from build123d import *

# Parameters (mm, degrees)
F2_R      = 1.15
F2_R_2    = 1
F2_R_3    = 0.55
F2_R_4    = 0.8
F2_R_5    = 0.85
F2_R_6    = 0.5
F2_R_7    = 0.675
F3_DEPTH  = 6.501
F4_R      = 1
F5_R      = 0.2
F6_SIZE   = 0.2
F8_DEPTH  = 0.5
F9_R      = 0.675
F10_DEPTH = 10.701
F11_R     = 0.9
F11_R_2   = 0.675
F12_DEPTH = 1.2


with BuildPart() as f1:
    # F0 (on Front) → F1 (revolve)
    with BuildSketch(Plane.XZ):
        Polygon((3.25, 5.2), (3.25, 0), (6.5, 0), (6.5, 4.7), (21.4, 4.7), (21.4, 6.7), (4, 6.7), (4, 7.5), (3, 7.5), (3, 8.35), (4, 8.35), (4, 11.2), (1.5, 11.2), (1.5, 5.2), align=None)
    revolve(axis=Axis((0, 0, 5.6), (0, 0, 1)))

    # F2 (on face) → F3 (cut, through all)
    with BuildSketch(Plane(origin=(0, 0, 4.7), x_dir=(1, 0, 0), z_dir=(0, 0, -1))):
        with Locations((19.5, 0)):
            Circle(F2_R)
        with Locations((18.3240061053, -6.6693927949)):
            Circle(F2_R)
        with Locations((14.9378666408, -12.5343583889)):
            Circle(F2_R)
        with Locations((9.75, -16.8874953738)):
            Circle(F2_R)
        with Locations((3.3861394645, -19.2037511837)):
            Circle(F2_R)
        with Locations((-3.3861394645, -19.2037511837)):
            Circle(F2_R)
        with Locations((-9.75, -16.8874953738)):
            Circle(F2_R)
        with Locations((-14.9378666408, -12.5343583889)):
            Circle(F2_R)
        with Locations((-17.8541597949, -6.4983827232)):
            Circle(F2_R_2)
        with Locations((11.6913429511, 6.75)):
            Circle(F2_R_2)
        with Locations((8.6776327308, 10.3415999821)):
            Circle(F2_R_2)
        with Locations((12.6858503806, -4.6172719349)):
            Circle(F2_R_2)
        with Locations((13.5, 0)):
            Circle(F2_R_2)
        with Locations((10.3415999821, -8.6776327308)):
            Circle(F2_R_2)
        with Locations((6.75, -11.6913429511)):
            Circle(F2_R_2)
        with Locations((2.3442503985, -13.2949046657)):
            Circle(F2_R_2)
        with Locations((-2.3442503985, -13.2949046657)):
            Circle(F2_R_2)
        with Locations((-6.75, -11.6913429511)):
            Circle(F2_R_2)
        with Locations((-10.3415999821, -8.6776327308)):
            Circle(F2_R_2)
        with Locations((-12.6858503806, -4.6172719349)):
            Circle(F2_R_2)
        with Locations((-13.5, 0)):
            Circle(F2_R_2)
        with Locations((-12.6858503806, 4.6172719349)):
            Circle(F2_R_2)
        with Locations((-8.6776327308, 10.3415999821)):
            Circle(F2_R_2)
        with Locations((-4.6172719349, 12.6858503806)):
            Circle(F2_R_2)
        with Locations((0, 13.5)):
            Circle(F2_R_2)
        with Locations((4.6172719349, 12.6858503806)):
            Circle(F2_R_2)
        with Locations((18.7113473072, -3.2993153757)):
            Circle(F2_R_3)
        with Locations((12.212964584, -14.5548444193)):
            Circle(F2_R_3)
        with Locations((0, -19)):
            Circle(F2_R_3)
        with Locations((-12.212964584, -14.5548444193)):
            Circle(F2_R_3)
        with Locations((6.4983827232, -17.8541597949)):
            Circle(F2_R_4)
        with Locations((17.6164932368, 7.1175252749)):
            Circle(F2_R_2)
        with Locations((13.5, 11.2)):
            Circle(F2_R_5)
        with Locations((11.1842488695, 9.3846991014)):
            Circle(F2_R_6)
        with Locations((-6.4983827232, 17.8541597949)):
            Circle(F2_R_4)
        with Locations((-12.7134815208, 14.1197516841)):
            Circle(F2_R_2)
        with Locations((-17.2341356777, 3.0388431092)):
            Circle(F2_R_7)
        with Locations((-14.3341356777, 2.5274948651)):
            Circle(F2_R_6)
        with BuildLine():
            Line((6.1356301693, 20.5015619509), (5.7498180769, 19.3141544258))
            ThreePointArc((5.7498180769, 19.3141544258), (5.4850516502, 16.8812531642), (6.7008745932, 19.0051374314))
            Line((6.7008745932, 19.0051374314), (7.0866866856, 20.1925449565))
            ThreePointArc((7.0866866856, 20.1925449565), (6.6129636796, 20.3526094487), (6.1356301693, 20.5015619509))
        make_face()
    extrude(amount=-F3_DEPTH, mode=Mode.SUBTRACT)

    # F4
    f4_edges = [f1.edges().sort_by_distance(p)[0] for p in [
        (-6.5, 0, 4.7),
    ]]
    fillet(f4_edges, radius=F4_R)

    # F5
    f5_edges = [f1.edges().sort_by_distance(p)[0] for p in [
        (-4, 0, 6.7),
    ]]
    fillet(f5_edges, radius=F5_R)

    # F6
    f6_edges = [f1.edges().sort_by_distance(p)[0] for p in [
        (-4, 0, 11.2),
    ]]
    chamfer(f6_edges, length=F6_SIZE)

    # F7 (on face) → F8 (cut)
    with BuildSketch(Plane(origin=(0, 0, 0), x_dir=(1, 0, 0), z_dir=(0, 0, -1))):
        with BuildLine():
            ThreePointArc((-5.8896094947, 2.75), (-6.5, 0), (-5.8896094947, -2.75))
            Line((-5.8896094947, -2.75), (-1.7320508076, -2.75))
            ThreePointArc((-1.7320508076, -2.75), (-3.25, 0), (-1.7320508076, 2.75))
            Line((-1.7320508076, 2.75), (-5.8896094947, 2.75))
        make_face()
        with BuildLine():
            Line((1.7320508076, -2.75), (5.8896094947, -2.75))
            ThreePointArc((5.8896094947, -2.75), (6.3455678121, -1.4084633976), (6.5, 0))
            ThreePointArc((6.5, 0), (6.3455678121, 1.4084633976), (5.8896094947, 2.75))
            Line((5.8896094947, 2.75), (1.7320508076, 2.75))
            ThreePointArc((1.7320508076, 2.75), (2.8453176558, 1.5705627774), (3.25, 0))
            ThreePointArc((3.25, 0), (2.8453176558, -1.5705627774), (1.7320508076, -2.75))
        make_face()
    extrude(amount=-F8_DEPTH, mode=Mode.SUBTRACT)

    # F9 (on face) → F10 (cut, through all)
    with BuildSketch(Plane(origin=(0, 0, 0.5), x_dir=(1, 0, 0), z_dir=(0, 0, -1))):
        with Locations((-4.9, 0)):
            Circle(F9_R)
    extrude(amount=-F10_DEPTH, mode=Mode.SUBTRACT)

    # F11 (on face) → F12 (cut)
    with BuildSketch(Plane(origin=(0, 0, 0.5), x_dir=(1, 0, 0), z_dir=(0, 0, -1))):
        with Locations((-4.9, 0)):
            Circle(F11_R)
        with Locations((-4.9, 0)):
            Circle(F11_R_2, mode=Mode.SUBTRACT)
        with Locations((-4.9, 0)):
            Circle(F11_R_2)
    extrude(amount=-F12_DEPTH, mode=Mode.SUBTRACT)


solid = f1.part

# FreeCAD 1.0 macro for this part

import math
import FreeCAD as App
import Part
import Sketcher
from FreeCAD import Vector
Q = App.Units.Quantity


def edges_at(feature, points):
    """Names of the edges that pass closest to the given points."""
    edges = feature.Shape.Edges
    near = lambda p: min(range(len(edges)), key=lambda i: edges[i].distToShape(Part.Vertex(*p))[0])
    return sorted({f"Edge{near(p) + 1}" for p in points})

doc = App.newDocument("Part")
body = doc.addObject("PartDesign::Body", "Body")

sketch1 = body.newObject("Sketcher::SketchObject", "Sketch")
sketch1.AttachmentSupport = (doc.getObject("XZ_Plane"), [""])
sketch1.MapMode = "FlatFace"
sketch1.addGeometry(Part.LineSegment(Vector(3.2, 5.2, 0), Vector(3.2, 0, 0)), False)
sketch1.addGeometry(Part.LineSegment(Vector(3.2, 0, 0), Vector(6.5, 0, 0)), False)
sketch1.addGeometry(Part.LineSegment(Vector(6.5, 0, 0), Vector(6.5, 4.7, 0)), False)
sketch1.addGeometry(Part.LineSegment(Vector(6.5, 4.7, 0), Vector(21.4, 4.7, 0)), False)
sketch1.addGeometry(Part.LineSegment(Vector(21.4, 4.7, 0), Vector(21.4, 6.7, 0)), False)
sketch1.addGeometry(Part.LineSegment(Vector(21.4, 6.7, 0), Vector(4, 6.7, 0)), False)
sketch1.addGeometry(Part.LineSegment(Vector(4, 6.7, 0), Vector(4, 7.5, 0)), False)
sketch1.addGeometry(Part.LineSegment(Vector(4, 7.5, 0), Vector(3, 7.5, 0)), False)
sketch1.addGeometry(Part.LineSegment(Vector(3, 7.5, 0), Vector(3, 8.3, 0)), False)
sketch1.addGeometry(Part.LineSegment(Vector(3, 8.3, 0), Vector(4, 8.3, 0)), False)
sketch1.addGeometry(Part.LineSegment(Vector(4, 8.3, 0), Vector(4, 11.2, 0)), False)
sketch1.addGeometry(Part.LineSegment(Vector(4, 11.2, 0), Vector(1.5, 11.2, 0)), False)
sketch1.addGeometry(Part.LineSegment(Vector(1.5, 11.2, 0), Vector(1.5, 5.2, 0)), False)
sketch1.addGeometry(Part.LineSegment(Vector(1.5, 5.2, 0), Vector(3.2, 5.2, 0)), False)
sketch1.addConstraint(Sketcher.Constraint("Coincident", 0, 2, 1, 1))
sketch1.addConstraint(Sketcher.Constraint("Coincident", 1, 2, 2, 1))
sketch1.addConstraint(Sketcher.Constraint("Coincident", 2, 2, 3, 1))
sketch1.addConstraint(Sketcher.Constraint("Coincident", 3, 2, 4, 1))
sketch1.addConstraint(Sketcher.Constraint("Coincident", 4, 2, 5, 1))
sketch1.addConstraint(Sketcher.Constraint("Coincident", 5, 2, 6, 1))
sketch1.addConstraint(Sketcher.Constraint("Coincident", 6, 2, 7, 1))
sketch1.addConstraint(Sketcher.Constraint("Coincident", 7, 2, 8, 1))
sketch1.addConstraint(Sketcher.Constraint("Coincident", 8, 2, 9, 1))
sketch1.addConstraint(Sketcher.Constraint("Coincident", 9, 2, 10, 1))
sketch1.addConstraint(Sketcher.Constraint("Coincident", 10, 2, 11, 1))
sketch1.addConstraint(Sketcher.Constraint("Coincident", 11, 2, 12, 1))
sketch1.addConstraint(Sketcher.Constraint("Coincident", 12, 2, 13, 1))
sketch1.addConstraint(Sketcher.Constraint("Coincident", 13, 2, 0, 1))
sketch1.addConstraint(Sketcher.Constraint("Vertical", 0))
sketch1.addConstraint(Sketcher.Constraint("Horizontal", 1))
sketch1.addConstraint(Sketcher.Constraint("Vertical", 2))
sketch1.addConstraint(Sketcher.Constraint("Horizontal", 3))
sketch1.addConstraint(Sketcher.Constraint("Vertical", 4))
sketch1.addConstraint(Sketcher.Constraint("Horizontal", 5))
sketch1.addConstraint(Sketcher.Constraint("Vertical", 6))
sketch1.addConstraint(Sketcher.Constraint("Horizontal", 7))
sketch1.addConstraint(Sketcher.Constraint("Vertical", 8))
sketch1.addConstraint(Sketcher.Constraint("Horizontal", 9))
sketch1.addConstraint(Sketcher.Constraint("Vertical", 10))
sketch1.addConstraint(Sketcher.Constraint("Horizontal", 11))
sketch1.addConstraint(Sketcher.Constraint("Vertical", 12))
sketch1.addConstraint(Sketcher.Constraint("Horizontal", 13))
sketch1.addConstraint(Sketcher.Constraint("PointOnObject", 0, 2, -1))
sketch1.addConstraint(Sketcher.Constraint("Vertical", 6, 2, 9, 2))
sketch1.addConstraint(Sketcher.Constraint("DistanceX", 7, 2, 7, 1, 1.0))
sketch1.addConstraint(Sketcher.Constraint("DistanceY", 4, 1, 4, 2, 2.0))
sketch1.addConstraint(Sketcher.Constraint("DistanceY", 12, 2, 12, 1, 6.0))
sketch1.addConstraint(Sketcher.Constraint("DistanceX", 3, 1, 3, 2, 14.9))
sketch1.addConstraint(Sketcher.Constraint("DistanceX", 5, 2, 5, 1, 17.4))
sketch1.addConstraint(Sketcher.Constraint("DistanceX", 11, 2, 11, 1, 2.5))
sketch1.addConstraint(Sketcher.Constraint("DistanceY", 0, 2, 0, 1, 5.2))
sketch1.addConstraint(Sketcher.Constraint("DistanceY", 2, 1, 2, 2, 4.7))
sketch1.addConstraint(Sketcher.Constraint("DistanceY", 6, 1, 6, 2, 0.8))
sketch1.addConstraint(Sketcher.Constraint("DistanceX", -1, 1, 5, 2, 4.0))
sketch1.addConstraint(Sketcher.Constraint("DistanceX", 1, 1, 1, 2, 3.25))
sketch1.addConstraint(Sketcher.Constraint("DistanceY", 8, 1, 8, 2, 0.85))
revolution = body.newObject("PartDesign::Revolution", "Revolution")
revolution.Profile = sketch1
revolution.ReferenceAxis = (sketch1, ["V_Axis"])
revolution.Angle = 360

sketch2 = body.newObject("Sketcher::SketchObject", "Sketch001")
sketch2.AttachmentSupport = (doc.getObject("XY_Plane"), [""])
sketch2.MapMode = "FlatFace"
sketch2.AttachmentOffset = App.Placement(Vector(0, 0, 4.7), App.Rotation())
sketch2.addGeometry(Part.Circle(Vector(19.5, 0, 0), Vector(0, 0, 1), 1.1), False)
sketch2.addGeometry(Part.Circle(Vector(18.3, 6.7, 0), Vector(0, 0, 1), 1.1), False)
sketch2.addGeometry(Part.Circle(Vector(14.9, 12.5, 0), Vector(0, 0, 1), 1.1), False)
sketch2.addGeometry(Part.Circle(Vector(9.8, 16.9, 0), Vector(0, 0, 1), 1.1), False)
sketch2.addGeometry(Part.Circle(Vector(3.4, 19.2, 0), Vector(0, 0, 1), 1.1), False)
sketch2.addGeometry(Part.Circle(Vector(-3.4, 19.2, 0), Vector(0, 0, 1), 1.1), False)
sketch2.addGeometry(Part.Circle(Vector(-9.8, 16.9, 0), Vector(0, 0, 1), 1.1), False)
sketch2.addGeometry(Part.Circle(Vector(-14.9, 12.5, 0), Vector(0, 0, 1), 1.1), False)
sketch2.addGeometry(Part.Circle(Vector(-17.9, 6.5, 0), Vector(0, 0, 1), 1), False)
sketch2.addGeometry(Part.Circle(Vector(11.7, -6.8, 0), Vector(0, 0, 1), 1), False)
sketch2.addGeometry(Part.Circle(Vector(8.7, -10.3, 0), Vector(0, 0, 1), 1), False)
sketch2.addGeometry(Part.Circle(Vector(12.7, 4.6, 0), Vector(0, 0, 1), 1), False)
sketch2.addGeometry(Part.Circle(Vector(13.5, 0, 0), Vector(0, 0, 1), 1), False)
sketch2.addGeometry(Part.Circle(Vector(10.3, 8.7, 0), Vector(0, 0, 1), 1), False)
sketch2.addGeometry(Part.Circle(Vector(6.8, 11.7, 0), Vector(0, 0, 1), 1), False)
sketch2.addGeometry(Part.Circle(Vector(2.3, 13.3, 0), Vector(0, 0, 1), 1), False)
sketch2.addGeometry(Part.Circle(Vector(-2.3, 13.3, 0), Vector(0, 0, 1), 1), False)
sketch2.addGeometry(Part.Circle(Vector(-6.8, 11.7, 0), Vector(0, 0, 1), 1), False)
sketch2.addGeometry(Part.Circle(Vector(-10.3, 8.7, 0), Vector(0, 0, 1), 1), False)
sketch2.addGeometry(Part.Circle(Vector(-12.7, 4.6, 0), Vector(0, 0, 1), 1), False)
sketch2.addGeometry(Part.Circle(Vector(-13.5, 0, 0), Vector(0, 0, 1), 1), False)
sketch2.addGeometry(Part.Circle(Vector(-12.7, -4.6, 0), Vector(0, 0, 1), 1), False)
sketch2.addGeometry(Part.Circle(Vector(-8.7, -10.3, 0), Vector(0, 0, 1), 1), False)
sketch2.addGeometry(Part.Circle(Vector(-4.6, -12.7, 0), Vector(0, 0, 1), 1), False)
sketch2.addGeometry(Part.Circle(Vector(0, -13.5, 0), Vector(0, 0, 1), 1), False)
sketch2.addGeometry(Part.Circle(Vector(4.6, -12.7, 0), Vector(0, 0, 1), 1), False)
sketch2.addGeometry(Part.Circle(Vector(18.7, 3.3, 0), Vector(0, 0, 1), 0.6), False)
sketch2.addGeometry(Part.Circle(Vector(12.2, 14.6, 0), Vector(0, 0, 1), 0.6), False)
sketch2.addGeometry(Part.Circle(Vector(0, 19, 0), Vector(0, 0, 1), 0.6), False)
sketch2.addGeometry(Part.Circle(Vector(-12.2, 14.6, 0), Vector(0, 0, 1), 0.6), False)
sketch2.addGeometry(Part.Circle(Vector(6.5, 17.9, 0), Vector(0, 0, 1), 0.8), False)
sketch2.addGeometry(Part.Circle(Vector(17.6, -7.1, 0), Vector(0, 0, 1), 1), False)
sketch2.addGeometry(Part.Circle(Vector(13.5, -11.2, 0), Vector(0, 0, 1), 0.8), False)
sketch2.addGeometry(Part.Circle(Vector(11.2, -9.4, 0), Vector(0, 0, 1), 0.5), False)
sketch2.addGeometry(Part.Circle(Vector(-6.5, -17.9, 0), Vector(0, 0, 1), 0.8), False)
sketch2.addGeometry(Part.Circle(Vector(-12.7, -14.1, 0), Vector(0, 0, 1), 1), False)
sketch2.addGeometry(Part.Circle(Vector(-17.2, -3, 0), Vector(0, 0, 1), 0.7), False)
sketch2.addGeometry(Part.Circle(Vector(-14.3, -2.5, 0), Vector(0, 0, 1), 0.5), False)
sketch2.addGeometry(Part.LineSegment(Vector(6.1, -20.5, 0), Vector(5.7, -19.3, 0)), False)
sketch2.addGeometry(Part.ArcOfCircle(Part.Circle(Vector(5.9, -18.1, 0), Vector(0, 0, 1), 1.2), math.radians(-48), math.radians(264)), False)
sketch2.addGeometry(Part.LineSegment(Vector(6.7, -19, 0), Vector(7.1, -20.2, 0)), False)
sketch2.addGeometry(Part.ArcOfCircle(Part.Circle(Vector(0, 0, 0), Vector(0, 0, 1), 21.4), math.radians(-73.34), math.radians(-70.66)), False)
sketch2.addConstraint(Sketcher.Constraint("Coincident", 38, 2, 39, 2))
sketch2.addConstraint(Sketcher.Constraint("Coincident", 39, 1, 40, 1))
sketch2.addConstraint(Sketcher.Constraint("Coincident", 40, 2, 41, 2))
sketch2.addConstraint(Sketcher.Constraint("Coincident", 41, 1, 38, 1))
sketch2.addConstraint(Sketcher.Constraint("Coincident", 41, 3, -1, 1))
sketch2.addConstraint(Sketcher.Constraint("Equal", 0, 1))
sketch2.addConstraint(Sketcher.Constraint("Equal", 1, 2))
sketch2.addConstraint(Sketcher.Constraint("Equal", 2, 3))
sketch2.addConstraint(Sketcher.Constraint("Equal", 3, 4))
sketch2.addConstraint(Sketcher.Constraint("Equal", 4, 5))
sketch2.addConstraint(Sketcher.Constraint("Equal", 5, 6))
sketch2.addConstraint(Sketcher.Constraint("Equal", 6, 7))
sketch2.addConstraint(Sketcher.Constraint("Equal", 8, 9))
sketch2.addConstraint(Sketcher.Constraint("Equal", 9, 10))
sketch2.addConstraint(Sketcher.Constraint("Equal", 10, 11))
sketch2.addConstraint(Sketcher.Constraint("Equal", 11, 12))
sketch2.addConstraint(Sketcher.Constraint("Equal", 12, 13))
sketch2.addConstraint(Sketcher.Constraint("Equal", 13, 14))
sketch2.addConstraint(Sketcher.Constraint("Equal", 14, 15))
sketch2.addConstraint(Sketcher.Constraint("Equal", 15, 16))
sketch2.addConstraint(Sketcher.Constraint("Equal", 16, 17))
sketch2.addConstraint(Sketcher.Constraint("Equal", 17, 18))
sketch2.addConstraint(Sketcher.Constraint("Equal", 18, 19))
sketch2.addConstraint(Sketcher.Constraint("Equal", 19, 20))
sketch2.addConstraint(Sketcher.Constraint("Equal", 20, 21))
sketch2.addConstraint(Sketcher.Constraint("Equal", 21, 22))
sketch2.addConstraint(Sketcher.Constraint("Equal", 22, 23))
sketch2.addConstraint(Sketcher.Constraint("Equal", 23, 24))
sketch2.addConstraint(Sketcher.Constraint("Equal", 24, 25))
sketch2.addConstraint(Sketcher.Constraint("Equal", 26, 27))
sketch2.addConstraint(Sketcher.Constraint("Equal", 27, 28))
sketch2.addConstraint(Sketcher.Constraint("Equal", 28, 29))
sketch2.addConstraint(Sketcher.Constraint("Equal", 25, 31))
sketch2.addConstraint(Sketcher.Constraint("Equal", 30, 34))
sketch2.addConstraint(Sketcher.Constraint("Equal", 31, 35))
sketch2.addConstraint(Sketcher.Constraint("Equal", 33, 37))
sketch2.addConstraint(Sketcher.Constraint("Symmetric", 12, 3, 20, 3, -1, 1))
sketch2.addConstraint(Sketcher.Constraint("Symmetric", 11, 3, 21, 3, -1, 1))
sketch2.addConstraint(Sketcher.Constraint("Symmetric", 30, 3, 34, 3, -1, 1))
sketch2.addConstraint(Sketcher.Constraint("Symmetric", 4, 3, 5, 3, -2))
sketch2.addConstraint(Sketcher.Constraint("Symmetric", 3, 3, 6, 3, -2))
sketch2.addConstraint(Sketcher.Constraint("Symmetric", 2, 3, 7, 3, -2))
sketch2.addConstraint(Sketcher.Constraint("Symmetric", 15, 3, 16, 3, -2))
sketch2.addConstraint(Sketcher.Constraint("Symmetric", 14, 3, 17, 3, -2))
sketch2.addConstraint(Sketcher.Constraint("Symmetric", 13, 3, 18, 3, -2))
sketch2.addConstraint(Sketcher.Constraint("Symmetric", 11, 3, 19, 3, -2))
sketch2.addConstraint(Sketcher.Constraint("Symmetric", 10, 3, 22, 3, -2))
sketch2.addConstraint(Sketcher.Constraint("Symmetric", 23, 3, 25, 3, -2))
sketch2.addConstraint(Sketcher.Constraint("Symmetric", 27, 3, 29, 3, -2))
sketch2.addConstraint(Sketcher.Constraint("PointOnObject", 0, 3, -1))
sketch2.addConstraint(Sketcher.Constraint("PointOnObject", 12, 3, -1))
sketch2.addConstraint(Sketcher.Constraint("PointOnObject", 24, 3, -2))
sketch2.addConstraint(Sketcher.Constraint("PointOnObject", 28, 3, -2))
sketch2.addConstraint(Sketcher.Constraint("Parallel", 38, 40))
sketch2.addConstraint(Sketcher.Constraint("Vertical", 12, 3, 32, 3))
sketch2.addConstraint(Sketcher.Constraint("Equal", 38, 40))
sketch2.addConstraint(Sketcher.Constraint("Diameter", 8, 2.0))
sketch2.addConstraint(Sketcher.Constraint("Diameter", 33, 1.0))
sketch2.addConstraint(Sketcher.Constraint("Diameter", 0, 2.3))
sketch2.addConstraint(Sketcher.Constraint("Diameter", 26, 1.1))
sketch2.addConstraint(Sketcher.Constraint("Diameter", 30, 1.6))
sketch2.addConstraint(Sketcher.Constraint("Diameter", 32, 1.7))
sketch2.addConstraint(Sketcher.Constraint("Radius", 41, 21.4))
sketch2.addConstraint(Sketcher.Constraint("Diameter", 36, 1.35))
sketch2.addConstraint(Sketcher.Constraint("Angle", 38, Q("108 deg")))
sketch2.addConstraint(Sketcher.Constraint("Radius", 39, 1.25))
sketch2.addConstraint(Sketcher.Constraint("DistanceY", -1, 1, 28, 3, 19.0))
sketch2.addConstraint(Sketcher.Constraint("DistanceX", 12, 3, 0, 3, 6.0))
sketch2.addConstraint(Sketcher.Constraint("DistanceX", 14, 3, 3, 3, 3.0))
sketch2.addConstraint(Sketcher.Constraint("DistanceX", -1, 1, 0, 3, 19.5))
sketch2.addConstraint(Sketcher.Constraint("DistanceY", 24, 3, -1, 1, 13.5))
sketch2.addConstraint(Sketcher.Constraint("DistanceY", 32, 3, -1, 1, 11.2))
sketch2.addConstraint(Sketcher.Constraint("DistanceX", 6, 3, 3, 3, 19.5))
sketch2.addConstraint(Sketcher.Constraint("DistanceX", 36, 3, 37, 3, 2.9))
sketch2.addConstraint(Sketcher.Constraint("DistanceY", 9, 3, -1, 1, 6.75))
sketch2.addConstraint(Sketcher.Constraint("DistanceY", 10, 3, -1, 1, 10.3416))
sketch2.addConstraint(Sketcher.Constraint("DistanceX", -1, 1, 13, 3, 10.3416))
sketch2.addConstraint(Sketcher.Constraint("DistanceY", 33, 3, -1, 1, 9.384699))
sketch2.addConstraint(Sketcher.Constraint("DistanceX", 8, 3, 4, 3, 21.240299))
sketch2.addConstraint(Sketcher.Constraint("DistanceX", 16, 3, 15, 3, 4.688501))
sketch2.addConstraint(Sketcher.Constraint("DistanceY", 14, 3, 27, 3, 2.863501))
sketch2.addConstraint(Sketcher.Constraint("DistanceX", 35, 3, 34, 3, 6.215099))
sketch2.addConstraint(Sketcher.Constraint("DistanceY", 35, 3, 23, 3, 1.433901))
sketch2.addConstraint(Sketcher.Constraint("DistanceY", -1, 1, 2, 3, 12.534358))
sketch2.addConstraint(Sketcher.Constraint("DistanceX", -1, 1, 4, 3, 3.386139))
sketch2.addConstraint(Sketcher.Constraint("DistanceY", -1, 1, 4, 3, 19.203751))
sketch2.addConstraint(Sketcher.Constraint("DistanceX", -1, 1, 11, 3, 12.68585))
sketch2.addConstraint(Sketcher.Constraint("DistanceY", -1, 1, 11, 3, 4.617272))
sketch2.addConstraint(Sketcher.Constraint("DistanceX", 23, 3, -1, 1, 4.617272))
sketch2.addConstraint(Sketcher.Constraint("DistanceY", 23, 3, -1, 1, 12.68585))
sketch2.addConstraint(Sketcher.Constraint("DistanceY", -1, 1, 30, 3, 17.85416))
sketch2.addConstraint(Sketcher.Constraint("DistanceX", -1, 1, 33, 3, 11.184249))
sketch2.addConstraint(Sketcher.Constraint("DistanceX", 35, 3, -1, 1, 12.713482))
sketch2.addConstraint(Sketcher.Constraint("DistanceX", -1, 1, 38, 2, 5.749818))
sketch2.addConstraint(Sketcher.Constraint("DistanceX", -1, 1, 41, 1, 6.13563))
sketch2.addConstraint(Sketcher.Constraint("DistanceX", 2, 3, 1, 3, 3.386139))
sketch2.addConstraint(Sketcher.Constraint("DistanceY", 1, 3, 4, 3, 12.534358))
sketch2.addConstraint(Sketcher.Constraint("DistanceY", 8, 3, 5, 3, 12.705368))
sketch2.addConstraint(Sketcher.Constraint("DistanceX", 10, 3, 9, 3, 3.01371))
sketch2.addConstraint(Sketcher.Constraint("DistanceY", 11, 3, 13, 3, 4.060361))
sketch2.addConstraint(Sketcher.Constraint("DistanceY", 13, 3, 14, 3, 3.01371))
sketch2.addConstraint(Sketcher.Constraint("DistanceY", 14, 3, 15, 3, 1.603562))
sketch2.addConstraint(Sketcher.Constraint("DistanceY", 15, 3, 3, 3, 3.592591))
sketch2.addConstraint(Sketcher.Constraint("DistanceX", 22, 3, 23, 3, 4.060361))
sketch2.addConstraint(Sketcher.Constraint("DistanceX", 1, 3, 26, 3, 0.387341))
sketch2.addConstraint(Sketcher.Constraint("DistanceX", 9, 3, 31, 3, 5.92515))
sketch2.addConstraint(Sketcher.Constraint("DistanceY", 31, 3, 26, 3, 10.416841))
sketch2.addConstraint(Sketcher.Constraint("DistanceY", 21, 3, 36, 3, 1.578429))
sketch2.addConstraint(Sketcher.Constraint("DistanceY", 36, 3, 37, 3, 0.511348))
sketch2.addConstraint(Sketcher.Constraint("DistanceX", 25, 3, 39, 3, 1.254051))
sketch2.addConstraint(Sketcher.Constraint("DistanceX", -1, 1, 1, 3, 18.324006))
sketch2.addConstraint(Sketcher.Constraint("DistanceY", -1, 1, 26, 3, 3.299315))
sketch2.addConstraint(Sketcher.Constraint("DistanceX", -1, 1, 27, 3, 12.212965))
sketch2.addConstraint(Sketcher.Constraint("DistanceX", 36, 3, -1, 1, 17.234136))
pocket1 = body.newObject("PartDesign::Pocket", "Pocket")
pocket1.Profile = sketch2
pocket1.Type = "ThroughAll"
pocket1.Reversed = True
doc.recompute()

fillet = body.newObject("PartDesign::Fillet", "Fillet")
fillet.Base = (pocket1, edges_at(pocket1, [(-6.5, 0, 4.7)]))
fillet.Radius = 1
doc.recompute()

fillet2 = body.newObject("PartDesign::Fillet", "Fillet001")
fillet2.Base = (fillet, edges_at(fillet, [(-4, 0, 6.7)]))
fillet2.Radius = 0.2
doc.recompute()

chamfer = body.newObject("PartDesign::Chamfer", "Chamfer")
chamfer.Base = (fillet2, edges_at(fillet2, [(-4, 0, 11.2)]))
chamfer.Size = 0.2

sketch3 = body.newObject("Sketcher::SketchObject", "Sketch002")
sketch3.AttachmentSupport = (doc.getObject("XY_Plane"), [""])
sketch3.MapMode = "FlatFace"
sketch3.addGeometry(Part.ArcOfCircle(Part.Circle(Vector(0, 0, 0), Vector(0, 0, 1), 6.5), math.radians(155), math.radians(205)), False)
sketch3.addGeometry(Part.LineSegment(Vector(-5.9, 2.8, 0), Vector(-1.7, 2.8, 0)), False)
sketch3.addGeometry(Part.ArcOfCircle(Part.Circle(Vector(0, 0, 0), Vector(0, 0, 1), 3.2), math.radians(122), math.radians(238)), False)
sketch3.addGeometry(Part.LineSegment(Vector(-1.7, -2.8, 0), Vector(-5.9, -2.8, 0)), False)
sketch3.addGeometry(Part.LineSegment(Vector(1.7, 2.8, 0), Vector(5.9, 2.8, 0)), False)
sketch3.addGeometry(Part.ArcOfCircle(Part.Circle(Vector(0, 0, 0), Vector(0, 0, 1), 6.5), math.radians(0), math.radians(25)), False)
sketch3.addGeometry(Part.ArcOfCircle(Part.Circle(Vector(0, 0, 0), Vector(0, 0, 1), 6.5), math.radians(-25), math.radians(0)), False)
sketch3.addGeometry(Part.LineSegment(Vector(5.9, -2.8, 0), Vector(1.7, -2.8, 0)), False)
sketch3.addGeometry(Part.ArcOfCircle(Part.Circle(Vector(0, 0, 0), Vector(0, 0, 1), 3.2), math.radians(-58), math.radians(0)), False)
sketch3.addGeometry(Part.ArcOfCircle(Part.Circle(Vector(0, 0, 0), Vector(0, 0, 1), 3.2), math.radians(0), math.radians(58)), False)
sketch3.addConstraint(Sketcher.Constraint("Coincident", 0, 1, 1, 1))
sketch3.addConstraint(Sketcher.Constraint("Coincident", 1, 2, 2, 1))
sketch3.addConstraint(Sketcher.Constraint("Coincident", 2, 2, 3, 1))
sketch3.addConstraint(Sketcher.Constraint("Coincident", 3, 2, 0, 2))
sketch3.addConstraint(Sketcher.Constraint("Coincident", 4, 2, 5, 2))
sketch3.addConstraint(Sketcher.Constraint("Tangent", 5, 1, 6, 2))
sketch3.addConstraint(Sketcher.Constraint("Coincident", 6, 1, 7, 1))
sketch3.addConstraint(Sketcher.Constraint("Coincident", 7, 2, 8, 1))
sketch3.addConstraint(Sketcher.Constraint("Tangent", 8, 2, 9, 1))
sketch3.addConstraint(Sketcher.Constraint("Coincident", 9, 2, 4, 1))
sketch3.addConstraint(Sketcher.Constraint("Horizontal", 1))
sketch3.addConstraint(Sketcher.Constraint("Horizontal", 3))
sketch3.addConstraint(Sketcher.Constraint("Horizontal", 4))
sketch3.addConstraint(Sketcher.Constraint("Horizontal", 7))
sketch3.addConstraint(Sketcher.Constraint("Coincident", 0, 3, -1, 1))
sketch3.addConstraint(Sketcher.Constraint("Coincident", 2, 3, -1, 1))
sketch3.addConstraint(Sketcher.Constraint("Coincident", 5, 3, -1, 1))
sketch3.addConstraint(Sketcher.Constraint("Coincident", 8, 3, -1, 1))
sketch3.addConstraint(Sketcher.Constraint("Equal", 0, 5))
sketch3.addConstraint(Sketcher.Constraint("Equal", 5, 6))
sketch3.addConstraint(Sketcher.Constraint("Equal", 2, 8))
sketch3.addConstraint(Sketcher.Constraint("Equal", 8, 9))
sketch3.addConstraint(Sketcher.Constraint("PointOnObject", 5, 1, -1))
sketch3.addConstraint(Sketcher.Constraint("PointOnObject", 8, 2, -1))
sketch3.addConstraint(Sketcher.Constraint("Horizontal", 1, 2, 4, 2))
sketch3.addConstraint(Sketcher.Constraint("Horizontal", 3, 2, 6, 1))
sketch3.addConstraint(Sketcher.Constraint("Vertical", 1, 2, 2, 2))
sketch3.addConstraint(Sketcher.Constraint("Radius", 0, 6.5))
sketch3.addConstraint(Sketcher.Constraint("Radius", 2, 3.25))
sketch3.addConstraint(Sketcher.Constraint("DistanceY", 3, 2, 0, 1, 5.5))
pocket2 = body.newObject("PartDesign::Pocket", "Pocket001")
pocket2.Profile = sketch3
pocket2.Length = 0.5
pocket2.Reversed = True

sketch4 = body.newObject("Sketcher::SketchObject", "Sketch003")
sketch4.AttachmentSupport = (doc.getObject("XY_Plane"), [""])
sketch4.MapMode = "FlatFace"
sketch4.AttachmentOffset = App.Placement(Vector(0, 0, 0.5), App.Rotation())
sketch4.addGeometry(Part.Circle(Vector(-4.9, 0, 0), Vector(0, 0, 1), 0.7), False)
sketch4.addConstraint(Sketcher.Constraint("PointOnObject", 0, 3, -1))
sketch4.addConstraint(Sketcher.Constraint("Diameter", 0, 1.35))
sketch4.addConstraint(Sketcher.Constraint("DistanceX", 0, 3, -1, 1, 4.9))
pocket3 = body.newObject("PartDesign::Pocket", "Pocket002")
pocket3.Profile = sketch4
pocket3.Type = "ThroughAll"
pocket3.Reversed = True

sketch5 = body.newObject("Sketcher::SketchObject", "Sketch004")
sketch5.AttachmentSupport = (doc.getObject("XY_Plane"), [""])
sketch5.MapMode = "FlatFace"
sketch5.AttachmentOffset = App.Placement(Vector(0, 0, 0.5), App.Rotation())
sketch5.addGeometry(Part.Circle(Vector(-4.9, 0, 0), Vector(0, 0, 1), 0.9), False)
sketch5.addConstraint(Sketcher.Constraint("PointOnObject", 0, 3, -1))
sketch5.addConstraint(Sketcher.Constraint("Diameter", 0, 1.8))
sketch5.addConstraint(Sketcher.Constraint("DistanceX", 0, 3, -1, 1, 4.9))
pocket4 = body.newObject("PartDesign::Pocket", "Pocket003")
pocket4.Profile = sketch5
pocket4.Length = 1.2
pocket4.Reversed = True

doc.recompute()
